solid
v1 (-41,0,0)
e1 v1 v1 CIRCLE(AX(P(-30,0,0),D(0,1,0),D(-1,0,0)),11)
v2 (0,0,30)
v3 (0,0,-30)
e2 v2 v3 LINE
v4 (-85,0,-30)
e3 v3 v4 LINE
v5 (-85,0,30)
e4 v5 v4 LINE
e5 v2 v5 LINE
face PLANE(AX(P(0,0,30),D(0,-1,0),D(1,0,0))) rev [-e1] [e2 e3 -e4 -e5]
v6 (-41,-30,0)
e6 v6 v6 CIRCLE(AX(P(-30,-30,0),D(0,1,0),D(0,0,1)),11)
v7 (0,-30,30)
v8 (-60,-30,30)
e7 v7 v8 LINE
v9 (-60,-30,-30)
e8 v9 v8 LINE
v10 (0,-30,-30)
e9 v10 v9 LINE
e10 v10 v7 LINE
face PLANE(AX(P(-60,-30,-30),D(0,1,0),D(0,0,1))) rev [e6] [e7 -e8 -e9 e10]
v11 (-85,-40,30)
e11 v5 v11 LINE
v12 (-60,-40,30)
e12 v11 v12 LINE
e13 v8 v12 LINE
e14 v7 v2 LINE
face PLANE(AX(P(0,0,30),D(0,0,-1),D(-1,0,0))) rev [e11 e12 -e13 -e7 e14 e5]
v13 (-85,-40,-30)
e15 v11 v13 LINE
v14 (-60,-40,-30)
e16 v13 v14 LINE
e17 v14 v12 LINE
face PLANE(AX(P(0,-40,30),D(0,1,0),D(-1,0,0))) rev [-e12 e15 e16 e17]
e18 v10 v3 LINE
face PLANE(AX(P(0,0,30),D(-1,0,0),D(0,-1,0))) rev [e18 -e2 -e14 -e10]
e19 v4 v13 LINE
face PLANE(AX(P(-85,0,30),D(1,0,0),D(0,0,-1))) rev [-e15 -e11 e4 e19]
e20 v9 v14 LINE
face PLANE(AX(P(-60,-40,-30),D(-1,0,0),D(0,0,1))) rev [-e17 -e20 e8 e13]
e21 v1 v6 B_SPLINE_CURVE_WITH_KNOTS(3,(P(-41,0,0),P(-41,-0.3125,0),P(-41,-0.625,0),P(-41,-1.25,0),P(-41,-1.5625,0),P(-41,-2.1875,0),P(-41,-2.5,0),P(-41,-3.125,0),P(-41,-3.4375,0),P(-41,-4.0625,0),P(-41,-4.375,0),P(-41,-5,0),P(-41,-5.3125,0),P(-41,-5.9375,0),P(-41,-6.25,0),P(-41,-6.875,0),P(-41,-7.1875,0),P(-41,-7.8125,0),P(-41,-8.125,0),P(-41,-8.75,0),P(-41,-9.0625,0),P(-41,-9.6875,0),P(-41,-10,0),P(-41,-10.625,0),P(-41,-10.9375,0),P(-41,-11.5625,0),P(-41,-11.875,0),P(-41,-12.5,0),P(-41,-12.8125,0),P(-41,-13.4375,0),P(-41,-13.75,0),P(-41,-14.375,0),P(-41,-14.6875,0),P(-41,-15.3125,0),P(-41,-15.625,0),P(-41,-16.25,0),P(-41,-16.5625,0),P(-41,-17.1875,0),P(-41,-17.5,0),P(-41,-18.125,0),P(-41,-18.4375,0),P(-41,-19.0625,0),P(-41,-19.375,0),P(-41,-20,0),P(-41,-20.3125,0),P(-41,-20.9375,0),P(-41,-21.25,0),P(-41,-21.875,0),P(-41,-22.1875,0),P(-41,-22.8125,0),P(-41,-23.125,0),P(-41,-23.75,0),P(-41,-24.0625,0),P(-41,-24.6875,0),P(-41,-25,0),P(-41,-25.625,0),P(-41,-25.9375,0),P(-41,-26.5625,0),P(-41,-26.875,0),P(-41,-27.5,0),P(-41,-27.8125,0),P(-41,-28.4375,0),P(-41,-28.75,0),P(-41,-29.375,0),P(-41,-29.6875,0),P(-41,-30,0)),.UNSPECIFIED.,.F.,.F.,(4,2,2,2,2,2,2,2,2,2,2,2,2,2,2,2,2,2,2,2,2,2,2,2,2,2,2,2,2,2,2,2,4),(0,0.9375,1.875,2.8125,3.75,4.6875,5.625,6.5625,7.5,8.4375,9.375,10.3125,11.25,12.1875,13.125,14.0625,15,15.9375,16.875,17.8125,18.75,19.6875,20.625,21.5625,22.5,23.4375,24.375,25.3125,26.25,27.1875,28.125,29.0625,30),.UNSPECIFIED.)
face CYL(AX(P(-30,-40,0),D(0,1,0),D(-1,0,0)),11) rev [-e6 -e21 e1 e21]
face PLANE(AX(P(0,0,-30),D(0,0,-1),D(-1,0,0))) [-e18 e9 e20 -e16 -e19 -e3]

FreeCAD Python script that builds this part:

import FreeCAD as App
import Part
import Sketcher
from FreeCAD import Vector
Q = App.Units.Quantity


def add_polygon(sketch, points):
    """Adds a closed chain of lines whose ends are joined by coincident constraints."""
    first, n = sketch.GeometryCount, len(points)
    for a, b in zip(points, points[1:] + points[:1]):
        sketch.addGeometry(Part.LineSegment(App.Vector(*a, 0), App.Vector(*b, 0)), False)
    for i in range(n):
        sketch.addConstraint(Sketcher.Constraint("Coincident", first + i, 2, first + (i + 1) % n, 1))

doc = App.newDocument("Part")
body = doc.addObject("PartDesign::Body", "Body")

sketch1 = doc.addObject("Sketcher::SketchObject", "Sketch")
body.addObject(sketch1)
sketch1.AttachmentSupport = (doc.XY_Plane, [""])
sketch1.MapMode = "FlatFace"
add_polygon(sketch1, [(-85, 0), (-85, -40), (0, -40), (0, 0)])
sketch1.addConstraint(Sketcher.Constraint("Vertical", 0))
sketch1.addConstraint(Sketcher.Constraint("Horizontal", 1))
sketch1.addConstraint(Sketcher.Constraint("Vertical", 2))
sketch1.addConstraint(Sketcher.Constraint("Horizontal", 3))
sketch1.addConstraint(Sketcher.Constraint("Coincident", 2, 2, -1, 1))
sketch1.addConstraint(Sketcher.Constraint("DistanceX", 1, 1, 1, 2, Q("85 mm")))
sketch1.addConstraint(Sketcher.Constraint("DistanceY", 0, 2, 0, 1, Q("40 mm")))
pad1 = doc.addObject("PartDesign::Pad", "Pad")
body.addObject(pad1)
pad1.Profile = sketch1
pad1.Length = 60
pad1.Midplane = True

sketch2 = doc.addObject("Sketcher::SketchObject", "Sketch001")
body.addObject(sketch2)
sketch2.AttachmentSupport = (doc.XY_Plane, [""])
sketch2.MapMode = "FlatFace"
sketch2.AttachmentOffset = App.Placement(Vector(0, 0, 30), App.Rotation())
add_polygon(sketch2, [(-60, -30), (-60, -40), (0, -40), (0, -30)])
sketch2.addConstraint(Sketcher.Constraint("Vertical", 0))
sketch2.addConstraint(Sketcher.Constraint("Horizontal", 1))
sketch2.addConstraint(Sketcher.Constraint("Vertical", 2))
sketch2.addConstraint(Sketcher.Constraint("Horizontal", 3))
sketch2.addConstraint(Sketcher.Constraint("PointOnObject", 1, 2, -2))
sketch2.addConstraint(Sketcher.Constraint("DistanceX", 1, 1, 1, 2, Q("60 mm")))
sketch2.addConstraint(Sketcher.Constraint("DistanceY", 0, 2, 0, 1, Q("10 mm")))
sketch2.addConstraint(Sketcher.Constraint("DistanceY", 0, 2, -1, 1, Q("40 mm")))
pocket1 = doc.addObject("PartDesign::Pocket", "Pocket")
body.addObject(pocket1)
pocket1.Profile = sketch2
pocket1.Type = "ThroughAll"

sketch3 = doc.addObject("Sketcher::SketchObject", "Sketch002")
body.addObject(sketch3)
sketch3.AttachmentSupport = (doc.XZ_Plane, [""])
sketch3.MapMode = "FlatFace"
sketch3.addGeometry(Part.Circle(Vector(-30, 0, 0), Vector(0, 0, 1), 11), False)
sketch3.addConstraint(Sketcher.Constraint("PointOnObject", 0, 3, -1))
sketch3.addConstraint(Sketcher.Constraint("Diameter", 0, Q("22 mm")))
sketch3.addConstraint(Sketcher.Constraint("DistanceX", 0, 3, -1, 1, Q("30 mm")))
pocket2 = doc.addObject("PartDesign::Pocket", "Pocket001")
body.addObject(pocket2)
pocket2.Profile = sketch3
pocket2.Type = "ThroughAll"
pocket2.Reversed = True

doc.recompute()
